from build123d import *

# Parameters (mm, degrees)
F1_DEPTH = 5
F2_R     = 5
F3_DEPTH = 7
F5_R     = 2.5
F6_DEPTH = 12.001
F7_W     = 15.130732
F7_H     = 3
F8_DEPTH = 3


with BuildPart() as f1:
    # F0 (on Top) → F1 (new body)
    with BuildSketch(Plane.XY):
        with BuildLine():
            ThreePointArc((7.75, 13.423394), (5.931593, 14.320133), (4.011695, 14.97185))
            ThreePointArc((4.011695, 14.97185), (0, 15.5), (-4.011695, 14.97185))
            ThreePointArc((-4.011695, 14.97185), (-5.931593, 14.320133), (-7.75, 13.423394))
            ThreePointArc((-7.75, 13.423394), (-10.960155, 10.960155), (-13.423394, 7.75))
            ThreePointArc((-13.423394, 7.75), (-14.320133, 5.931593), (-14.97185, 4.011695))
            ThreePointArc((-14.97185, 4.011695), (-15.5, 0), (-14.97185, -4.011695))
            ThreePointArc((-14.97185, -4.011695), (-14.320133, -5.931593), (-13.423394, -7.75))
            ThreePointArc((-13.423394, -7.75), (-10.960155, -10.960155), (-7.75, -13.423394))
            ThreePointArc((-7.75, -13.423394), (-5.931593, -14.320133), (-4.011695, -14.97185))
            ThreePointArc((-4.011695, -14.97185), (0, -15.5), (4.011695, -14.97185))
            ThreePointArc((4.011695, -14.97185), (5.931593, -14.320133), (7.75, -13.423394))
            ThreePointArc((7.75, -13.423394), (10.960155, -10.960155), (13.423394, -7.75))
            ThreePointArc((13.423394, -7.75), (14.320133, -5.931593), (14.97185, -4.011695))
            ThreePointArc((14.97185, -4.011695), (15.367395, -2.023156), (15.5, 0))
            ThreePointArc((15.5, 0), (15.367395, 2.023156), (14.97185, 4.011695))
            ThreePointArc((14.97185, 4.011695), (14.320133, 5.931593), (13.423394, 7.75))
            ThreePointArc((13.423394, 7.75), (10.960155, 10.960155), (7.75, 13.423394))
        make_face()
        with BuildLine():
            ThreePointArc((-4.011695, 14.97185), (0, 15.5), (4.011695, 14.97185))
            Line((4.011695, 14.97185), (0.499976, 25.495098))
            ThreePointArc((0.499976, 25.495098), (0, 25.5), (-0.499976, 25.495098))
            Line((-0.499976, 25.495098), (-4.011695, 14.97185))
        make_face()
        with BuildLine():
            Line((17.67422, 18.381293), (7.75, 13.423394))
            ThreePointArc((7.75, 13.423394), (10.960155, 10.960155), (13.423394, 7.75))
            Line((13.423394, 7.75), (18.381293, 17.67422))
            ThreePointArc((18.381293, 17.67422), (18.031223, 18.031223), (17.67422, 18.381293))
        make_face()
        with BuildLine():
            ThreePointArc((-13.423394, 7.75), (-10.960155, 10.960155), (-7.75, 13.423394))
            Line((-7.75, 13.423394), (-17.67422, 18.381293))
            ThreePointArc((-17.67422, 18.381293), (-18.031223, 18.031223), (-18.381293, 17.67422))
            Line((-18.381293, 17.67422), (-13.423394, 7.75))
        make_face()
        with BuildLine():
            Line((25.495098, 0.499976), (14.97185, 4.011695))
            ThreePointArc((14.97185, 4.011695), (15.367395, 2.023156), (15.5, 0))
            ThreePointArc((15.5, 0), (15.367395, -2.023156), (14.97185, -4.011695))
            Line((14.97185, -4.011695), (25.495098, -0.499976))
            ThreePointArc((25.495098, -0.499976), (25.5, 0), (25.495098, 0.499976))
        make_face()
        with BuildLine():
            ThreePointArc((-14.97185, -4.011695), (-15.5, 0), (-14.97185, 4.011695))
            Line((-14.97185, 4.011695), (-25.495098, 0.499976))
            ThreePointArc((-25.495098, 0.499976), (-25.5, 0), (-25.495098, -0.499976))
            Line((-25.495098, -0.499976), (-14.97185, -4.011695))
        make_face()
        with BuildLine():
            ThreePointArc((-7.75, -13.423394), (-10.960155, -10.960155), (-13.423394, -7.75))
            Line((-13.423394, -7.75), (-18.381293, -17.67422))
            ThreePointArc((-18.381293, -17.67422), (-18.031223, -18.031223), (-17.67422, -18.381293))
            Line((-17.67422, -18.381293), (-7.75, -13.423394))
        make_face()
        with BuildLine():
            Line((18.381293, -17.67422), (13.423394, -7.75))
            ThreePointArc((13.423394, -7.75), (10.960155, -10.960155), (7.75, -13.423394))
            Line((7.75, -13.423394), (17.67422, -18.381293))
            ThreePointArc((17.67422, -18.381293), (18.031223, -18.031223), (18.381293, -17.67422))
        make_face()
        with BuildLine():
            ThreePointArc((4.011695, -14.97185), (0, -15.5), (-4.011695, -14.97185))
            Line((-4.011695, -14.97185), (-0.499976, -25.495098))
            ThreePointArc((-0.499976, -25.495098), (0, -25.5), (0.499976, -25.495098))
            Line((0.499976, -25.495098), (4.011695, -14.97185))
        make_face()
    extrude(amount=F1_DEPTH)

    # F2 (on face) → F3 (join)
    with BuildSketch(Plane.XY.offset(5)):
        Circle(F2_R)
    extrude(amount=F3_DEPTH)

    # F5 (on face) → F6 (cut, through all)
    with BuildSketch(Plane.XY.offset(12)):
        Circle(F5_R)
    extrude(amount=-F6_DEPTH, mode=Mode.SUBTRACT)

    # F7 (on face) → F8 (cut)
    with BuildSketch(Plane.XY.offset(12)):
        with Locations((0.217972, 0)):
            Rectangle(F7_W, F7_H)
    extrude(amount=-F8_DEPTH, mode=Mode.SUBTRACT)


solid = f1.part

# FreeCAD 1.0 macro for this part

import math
import FreeCAD as App
import Part
import Sketcher
Q = App.Units.Quantity


def add_polygon(sketch, points):
    """Adds a closed chain of lines whose ends are joined by coincident constraints."""
    first, n = sketch.GeometryCount, len(points)
    for a, b in zip(points, points[1:] + points[:1]):
        sketch.addGeometry(Part.LineSegment(App.Vector(*a, 0), App.Vector(*b, 0)), False)
    for i in range(n):
        sketch.addConstraint(Sketcher.Constraint("Coincident", first + i, 2, first + (i + 1) % n, 1))

doc = App.newDocument("Part")
params = doc.addObject("Spreadsheet::Sheet", "Params")
for row, (alias, value) in enumerate([
    ("pad1_length", "5 mm"),
    ("sketch2_diameter", "10 mm"),
    ("pad2_length", "7 mm"),
    ("sketch3_diameter", "5 mm"),
    ("sketch4_height", "3 mm"),
    ("pocket2_length", "3 mm"),
], start=1):
    params.set(f"A{row}", alias)
    params.set(f"B{row}", "=" + value)
    params.setAlias(f"B{row}", alias)

body = doc.addObject("PartDesign::Body", "Body")

sketch1 = body.newObject("Sketcher::SketchObject", "Sketch")
sketch1.AttachmentSupport = (doc.getObject("XY_Plane"), [""])
sketch1.MapMode = "FlatFace"
sketch1.addGeometry([
    Part.ArcOfCircle(Part.Circle(App.Vector(0.000012, 0.000023, 0), App.Vector(0, 0, 1), 15.499974), math.radians(59.999996), math.radians(75.000021)),
    Part.LineSegment(App.Vector(4.011695, 14.97185, 0), App.Vector(0.499976, 25.495098, 0)),
    Part.ArcOfCircle(Part.Circle(App.Vector(0, 0.000201, 0), App.Vector(0, 0, 1), 25.499799), math.radians(88.876526), math.radians(91.123474)),
    Part.LineSegment(App.Vector(-0.499976, 25.495098, 0), App.Vector(-4.011695, 14.97185, 0)),
    Part.ArcOfCircle(Part.Circle(App.Vector(-0.000012, 0.000023, 0), App.Vector(0, 0, 1), 15.499974), math.radians(104.999979), math.radians(120.000004)),
    Part.LineSegment(App.Vector(-7.75, 13.423394, 0), App.Vector(-17.67422, 18.381293, 0)),
    Part.ArcOfCircle(Part.Circle(App.Vector(-0.001499, 0.001499, 0), App.Vector(0, 0, 1), 25.49788), math.radians(133.876442), math.radians(136.123558)),
    Part.LineSegment(App.Vector(-18.381293, 17.67422, 0), App.Vector(-13.423394, 7.75, 0)),
    Part.ArcOfCircle(Part.Circle(App.Vector(-0.000023, 0.000012, 0), App.Vector(0, 0, 1), 15.499974), math.radians(149.999996), math.radians(165.000021)),
    Part.LineSegment(App.Vector(-14.97185, 4.011695, 0), App.Vector(-25.495098, 0.499976, 0)),
    Part.ArcOfCircle(Part.Circle(App.Vector(-0.000201, 0, 0), App.Vector(0, 0, 1), 25.499799), math.radians(178.876526), math.radians(181.123474)),
    Part.LineSegment(App.Vector(-25.495098, -0.499976, 0), App.Vector(-14.97185, -4.011695, 0)),
    Part.ArcOfCircle(Part.Circle(App.Vector(-0.000023, -0.000012, 0), App.Vector(0, 0, 1), 15.499974), math.radians(-165.000021), math.radians(-149.999996)),
    Part.LineSegment(App.Vector(-13.423394, -7.75, 0), App.Vector(-18.381293, -17.67422, 0)),
    Part.ArcOfCircle(Part.Circle(App.Vector(-0.001499, -0.001499, 0), App.Vector(0, 0, 1), 25.49788), math.radians(-136.123558), math.radians(-133.876442)),
    Part.LineSegment(App.Vector(-17.67422, -18.381293, 0), App.Vector(-7.75, -13.423394, 0)),
    Part.ArcOfCircle(Part.Circle(App.Vector(-0.000012, -0.000023, 0), App.Vector(0, 0, 1), 15.499974), math.radians(-120.000004), math.radians(-104.999979)),
    Part.LineSegment(App.Vector(-4.011695, -14.97185, 0), App.Vector(-0.499976, -25.495098, 0)),
    Part.ArcOfCircle(Part.Circle(App.Vector(0, -0.000201, 0), App.Vector(0, 0, 1), 25.499799), math.radians(-91.123474), math.radians(-88.876526)),
    Part.LineSegment(App.Vector(0.499976, -25.495098, 0), App.Vector(4.011695, -14.97185, 0)),
    Part.ArcOfCircle(Part.Circle(App.Vector(0.000012, -0.000023, 0), App.Vector(0, 0, 1), 15.499974), math.radians(-75.000021), math.radians(-59.999996)),
    Part.LineSegment(App.Vector(7.75, -13.423394, 0), App.Vector(17.67422, -18.381293, 0)),
    Part.ArcOfCircle(Part.Circle(App.Vector(0.001499, -0.001499, 0), App.Vector(0, 0, 1), 25.49788), math.radians(-46.123558), math.radians(-43.876442)),
    Part.LineSegment(App.Vector(18.381293, -17.67422, 0), App.Vector(13.423394, -7.75, 0)),
    Part.ArcOfCircle(Part.Circle(App.Vector(0.000023, -0.000012, 0), App.Vector(0, 0, 1), 15.499974), math.radians(-30.000004), math.radians(-14.999979)),
    Part.LineSegment(App.Vector(14.97185, -4.011695, 0), App.Vector(25.495098, -0.499976, 0)),
    Part.ArcOfCircle(Part.Circle(App.Vector(0.000201, 0, 0), App.Vector(0, 0, 1), 25.499799), math.radians(-1.123474), math.radians(1.123474)),
    Part.LineSegment(App.Vector(25.495098, 0.499976, 0), App.Vector(14.97185, 4.011695, 0)),
    Part.ArcOfCircle(Part.Circle(App.Vector(0.000023, 0.000012, 0), App.Vector(0, 0, 1), 15.499974), math.radians(14.999979), math.radians(30.000004)),
    Part.LineSegment(App.Vector(13.423394, 7.75, 0), App.Vector(18.381293, 17.67422, 0)),
    Part.ArcOfCircle(Part.Circle(App.Vector(0.001499, 0.001499, 0), App.Vector(0, 0, 1), 25.49788), math.radians(43.876442), math.radians(46.123558)),
    Part.LineSegment(App.Vector(17.67422, 18.381293, 0), App.Vector(7.75, 13.423394, 0)),
], False)
sketch1.addConstraint([
    Sketcher.Constraint("Coincident", 0, 2, 1, 1),
    Sketcher.Constraint("Coincident", 1, 2, 2, 1),
    Sketcher.Constraint("Coincident", 2, 2, 3, 1),
    Sketcher.Constraint("Coincident", 3, 2, 4, 1),
    Sketcher.Constraint("Coincident", 4, 2, 5, 1),
    Sketcher.Constraint("Coincident", 5, 2, 6, 1),
    Sketcher.Constraint("Coincident", 6, 2, 7, 1),
    Sketcher.Constraint("Coincident", 7, 2, 8, 1),
    Sketcher.Constraint("Coincident", 8, 2, 9, 1),
    Sketcher.Constraint("Coincident", 9, 2, 10, 1),
    Sketcher.Constraint("Coincident", 10, 2, 11, 1),
    Sketcher.Constraint("Coincident", 11, 2, 12, 1),
    Sketcher.Constraint("Coincident", 12, 2, 13, 1),
    Sketcher.Constraint("Coincident", 13, 2, 14, 1),
    Sketcher.Constraint("Coincident", 14, 2, 15, 1),
    Sketcher.Constraint("Coincident", 15, 2, 16, 1),
    Sketcher.Constraint("Coincident", 16, 2, 17, 1),
    Sketcher.Constraint("Coincident", 17, 2, 18, 1),
    Sketcher.Constraint("Coincident", 18, 2, 19, 1),
    Sketcher.Constraint("Coincident", 19, 2, 20, 1),
    Sketcher.Constraint("Coincident", 20, 2, 21, 1),
    Sketcher.Constraint("Coincident", 21, 2, 22, 1),
    Sketcher.Constraint("Coincident", 22, 2, 23, 1),
    Sketcher.Constraint("Coincident", 23, 2, 24, 1),
    Sketcher.Constraint("Coincident", 24, 2, 25, 1),
    Sketcher.Constraint("Coincident", 25, 2, 26, 1),
    Sketcher.Constraint("Coincident", 26, 2, 27, 1),
    Sketcher.Constraint("Coincident", 27, 2, 28, 1),
    Sketcher.Constraint("Coincident", 28, 2, 29, 1),
    Sketcher.Constraint("Coincident", 29, 2, 30, 1),
    Sketcher.Constraint("Coincident", 30, 2, 31, 1),
    Sketcher.Constraint("Coincident", 31, 2, 0, 1),
    Sketcher.Constraint("Equal", 0, 4),
    Sketcher.Constraint("Equal", 4, 8),
    Sketcher.Constraint("Equal", 2, 10),
    Sketcher.Constraint("Equal", 8, 12),
    Sketcher.Constraint("Equal", 6, 14),
    Sketcher.Constraint("Equal", 12, 16),
    Sketcher.Constraint("Equal", 10, 18),
    Sketcher.Constraint("Equal", 16, 20),
    Sketcher.Constraint("Equal", 14, 22),
    Sketcher.Constraint("Equal", 20, 24),
    Sketcher.Constraint("Equal", 18, 26),
    Sketcher.Constraint("Equal", 24, 28),
    Sketcher.Constraint("Equal", 22, 30),
    Sketcher.Constraint("Symmetric", 0, 3, 16, 3, -1, 1),
    Sketcher.Constraint("Symmetric", 2, 3, 18, 3, -1, 1),
    Sketcher.Constraint("Symmetric", 4, 3, 20, 3, -1, 1),
    Sketcher.Constraint("Symmetric", 6, 3, 22, 3, -1, 1),
    Sketcher.Constraint("Symmetric", 8, 3, 24, 3, -1, 1),
    Sketcher.Constraint("Symmetric", 10, 3, 26, 3, -1, 1),
    Sketcher.Constraint("Symmetric", 12, 3, 28, 3, -1, 1),
    Sketcher.Constraint("Symmetric", 14, 3, 30, 3, -1, 1),
    Sketcher.Constraint("Symmetric", 0, 3, 4, 3, -2),
    Sketcher.Constraint("Symmetric", 14, 3, 22, 3, -2),
    Sketcher.Constraint("Symmetric", 12, 3, 24, 3, -2),
    Sketcher.Constraint("Symmetric", 1, 2, 2, 2, -2),
    Sketcher.Constraint("Symmetric", 10, 2, 25, 2, -2),
    Sketcher.Constraint("Perpendicular", 1, 9),
    Sketcher.Constraint("Perpendicular", 3, 11),
    Sketcher.Constraint("Perpendicular", 5, 13),
    Sketcher.Constraint("Perpendicular", 7, 15),
    Sketcher.Constraint("Perpendicular", 9, 17),
    Sketcher.Constraint("Perpendicular", 11, 19),
    Sketcher.Constraint("Perpendicular", 13, 21),
    Sketcher.Constraint("Perpendicular", 15, 23),
    Sketcher.Constraint("Perpendicular", 17, 25),
    Sketcher.Constraint("Perpendicular", 19, 27),
    Sketcher.Constraint("Perpendicular", 21, 29),
    Sketcher.Constraint("Perpendicular", 23, 31),
    Sketcher.Constraint("Horizontal", 0, 2, 3, 2),
    Sketcher.Constraint("Horizontal", 17, 2, 18, 2),
    Sketcher.Constraint("Horizontal", 15, 2, 20, 2),
    Sketcher.Constraint("Horizontal", 14, 2, 21, 2),
    Sketcher.Constraint("Horizontal", 13, 2, 22, 2),
    Sketcher.Constraint("Horizontal", 9, 2, 26, 2),
    Sketcher.Constraint("Horizontal", 7, 2, 28, 2),
    Sketcher.Constraint("Horizontal", 5, 2, 30, 2),
    Sketcher.Constraint("Vertical", 9, 2, 10, 2),
    Sketcher.Constraint("Vertical", 7, 2, 12, 2),
    Sketcher.Constraint("Vertical", 5, 2, 14, 2),
    Sketcher.Constraint("Vertical", 3, 2, 16, 2),
    Sketcher.Constraint("Equal", 3, 5),
    Sketcher.Constraint("Equal", 5, 7),
    Sketcher.Constraint("Equal", 7, 9),
    Sketcher.Constraint("Radius", 2, Q("25.499799 mm")),
    Sketcher.Constraint("DistanceX", 4, 2, -1, 1, Q("7.75 mm")),
    Sketcher.Constraint("DistanceY", -1, 1, 7, 2, Q("7.75 mm")),
    Sketcher.Constraint("Radius", 6, Q("25.49788 mm")),
    Sketcher.Constraint("Radius", 0, Q("15.499974 mm")),
    Sketcher.Constraint("DistanceY", -1, 1, 2, 3, Q("0.000201 mm")),
    Sketcher.Constraint("DistanceX", 6, 3, -1, 1, Q("0.001499 mm")),
    Sketcher.Constraint("DistanceY", -1, 1, 6, 3, Q("0.001499 mm")),
    Sketcher.Constraint("DistanceX", 10, 3, -1, 1, Q("0.000201 mm")),
    Sketcher.Constraint("DistanceY", -1, 1, 2, 2, Q("25.495098 mm")),
    Sketcher.Constraint("DistanceX", 10, 2, -1, 1, Q("25.495098 mm")),
    Sketcher.Constraint("DistanceY", 4, 2, 5, 2, Q("4.957899 mm")),
    Sketcher.Constraint("DistanceX", 7, 2, 3, 2, Q("9.411699 mm")),
    Sketcher.Constraint("DistanceY", -1, 1, 0, 2, Q("14.97185 mm")),
])
pad1 = body.newObject("PartDesign::Pad", "Pad")
pad1.Profile = sketch1
pad1.setExpression("Length", "Params.pad1_length")

sketch2 = body.newObject("Sketcher::SketchObject", "Sketch001")
sketch2.AttachmentSupport = (doc.getObject("XY_Plane"), [""])
sketch2.MapMode = "FlatFace"
sketch2.AttachmentOffset = App.Placement(App.Vector(0, 0, 5), App.Rotation())
sketch2.addGeometry(Part.Circle(App.Vector(0, 0, 0), App.Vector(0, 0, 1), 5), False)
sketch2.addConstraint([
    Sketcher.Constraint("Coincident", 0, 3, -1, 1),
    Sketcher.Constraint("Diameter", 0, Q("10 mm")),
])
sketch2.setExpression("Constraints[1]", "Params.sketch2_diameter")
pad2 = body.newObject("PartDesign::Pad", "Pad001")
pad2.Profile = sketch2
pad2.setExpression("Length", "Params.pad2_length")

sketch3 = body.newObject("Sketcher::SketchObject", "Sketch002")
sketch3.AttachmentSupport = (doc.getObject("XY_Plane"), [""])
sketch3.MapMode = "FlatFace"
sketch3.AttachmentOffset = App.Placement(App.Vector(0, 0, 12), App.Rotation())
sketch3.addGeometry(Part.Circle(App.Vector(0, 0, 0), App.Vector(0, 0, 1), 2.5), False)
sketch3.addConstraint([
    Sketcher.Constraint("Coincident", 0, 3, -1, 1),
    Sketcher.Constraint("Diameter", 0, Q("5 mm")),
])
sketch3.setExpression("Constraints[1]", "Params.sketch3_diameter")
pocket1 = body.newObject("PartDesign::Pocket", "Pocket")
pocket1.Profile = sketch3
pocket1.Type = "ThroughAll"

sketch4 = body.newObject("Sketcher::SketchObject", "Sketch003")
sketch4.AttachmentSupport = (doc.getObject("XY_Plane"), [""])
sketch4.MapMode = "FlatFace"
sketch4.AttachmentOffset = App.Placement(App.Vector(0, 0, 12), App.Rotation())
add_polygon(sketch4, [(-7.3, 1.5), (-7.3, -1.5), (7.8, -1.5), (7.8, 1.5)])
sketch4.addConstraint([
    Sketcher.Constraint("Vertical", 0),
    Sketcher.Constraint("Horizontal", 1),
    Sketcher.Constraint("Vertical", 2),
    Sketcher.Constraint("Horizontal", 3),
    Sketcher.Constraint("DistanceY", 0, 2, 0, 1, Q("3 mm")),
    Sketcher.Constraint("DistanceY", 0, 2, -1, 1, Q("1.5 mm")),
    Sketcher.Constraint("DistanceX", 1, 1, 1, 2, Q("15.130732 mm")),
    Sketcher.Constraint("DistanceX", 0, 2, -1, 1, Q("7.347394 mm")),
])
sketch4.setExpression("Constraints[8]", "Params.sketch4_height")
pocket2 = body.newObject("PartDesign::Pocket", "Pocket001")
pocket2.Profile = sketch4
pocket2.setExpression("Length", "Params.pocket2_length")

doc.recompute()
